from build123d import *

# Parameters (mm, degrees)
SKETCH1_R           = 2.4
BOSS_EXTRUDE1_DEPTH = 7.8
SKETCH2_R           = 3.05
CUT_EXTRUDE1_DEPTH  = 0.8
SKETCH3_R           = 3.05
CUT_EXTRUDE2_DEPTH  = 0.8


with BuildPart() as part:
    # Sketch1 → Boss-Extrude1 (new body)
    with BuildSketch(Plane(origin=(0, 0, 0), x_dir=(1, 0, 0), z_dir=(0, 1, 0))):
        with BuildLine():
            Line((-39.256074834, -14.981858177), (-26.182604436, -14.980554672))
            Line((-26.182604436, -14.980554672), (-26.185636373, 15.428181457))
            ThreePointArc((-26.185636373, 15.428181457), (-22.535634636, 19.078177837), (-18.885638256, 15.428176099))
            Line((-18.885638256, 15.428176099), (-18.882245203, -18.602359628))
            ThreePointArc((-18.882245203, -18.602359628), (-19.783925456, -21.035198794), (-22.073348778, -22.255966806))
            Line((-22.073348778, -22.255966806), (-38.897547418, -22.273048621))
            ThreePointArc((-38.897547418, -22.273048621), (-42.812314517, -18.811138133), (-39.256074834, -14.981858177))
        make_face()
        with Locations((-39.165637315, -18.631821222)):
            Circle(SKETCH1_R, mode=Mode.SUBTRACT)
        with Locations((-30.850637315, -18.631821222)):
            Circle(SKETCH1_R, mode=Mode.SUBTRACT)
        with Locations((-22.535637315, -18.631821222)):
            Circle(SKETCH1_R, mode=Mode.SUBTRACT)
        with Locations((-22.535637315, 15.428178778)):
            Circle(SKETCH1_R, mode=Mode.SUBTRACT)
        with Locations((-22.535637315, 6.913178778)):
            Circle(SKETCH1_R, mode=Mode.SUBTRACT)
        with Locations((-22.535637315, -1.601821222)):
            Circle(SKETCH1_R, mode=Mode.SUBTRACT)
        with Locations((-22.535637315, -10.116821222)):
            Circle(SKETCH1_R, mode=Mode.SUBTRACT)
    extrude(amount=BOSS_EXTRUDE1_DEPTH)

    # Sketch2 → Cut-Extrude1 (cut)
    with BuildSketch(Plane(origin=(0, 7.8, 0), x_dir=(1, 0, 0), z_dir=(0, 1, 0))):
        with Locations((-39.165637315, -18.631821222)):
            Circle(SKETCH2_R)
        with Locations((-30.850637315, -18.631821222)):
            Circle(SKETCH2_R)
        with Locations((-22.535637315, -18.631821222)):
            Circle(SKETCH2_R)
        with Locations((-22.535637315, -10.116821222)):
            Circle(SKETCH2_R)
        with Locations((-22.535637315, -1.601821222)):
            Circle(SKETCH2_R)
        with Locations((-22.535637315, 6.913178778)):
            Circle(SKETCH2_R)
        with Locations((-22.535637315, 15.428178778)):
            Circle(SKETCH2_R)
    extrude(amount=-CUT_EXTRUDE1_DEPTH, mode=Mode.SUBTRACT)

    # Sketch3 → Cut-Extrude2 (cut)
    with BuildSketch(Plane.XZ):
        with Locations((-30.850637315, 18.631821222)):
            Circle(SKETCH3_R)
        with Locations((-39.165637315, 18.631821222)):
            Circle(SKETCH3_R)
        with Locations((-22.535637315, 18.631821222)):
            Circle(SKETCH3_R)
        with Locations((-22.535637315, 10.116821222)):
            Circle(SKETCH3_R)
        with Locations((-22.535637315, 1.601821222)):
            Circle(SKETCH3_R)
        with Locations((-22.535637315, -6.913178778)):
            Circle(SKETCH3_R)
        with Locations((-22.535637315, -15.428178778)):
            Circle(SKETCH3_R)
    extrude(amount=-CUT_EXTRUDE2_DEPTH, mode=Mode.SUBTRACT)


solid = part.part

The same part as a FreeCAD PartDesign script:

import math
import FreeCAD as App
import Part
import Sketcher
Q = App.Units.Quantity

doc = App.newDocument("Part")
body = doc.addObject("PartDesign::Body", "Body")

sketch1 = body.newObject("Sketcher::SketchObject", "Sketch")
sketch1.AttachmentSupport = (doc.getObject("XZ_Plane"), [""])
sketch1.MapMode = "FlatFace"
sketch1.addGeometry([
    Part.LineSegment(App.Vector(-26.2, 15, 0), App.Vector(-39.3, 15, 0)),
    Part.ArcOfCircle(Part.Circle(App.Vector(-39.2, 18.6, 0), App.Vector(0, 0, 1), 3.7), math.radians(86), math.radians(269)),
    Part.LineSegment(App.Vector(-38.9, 22.3, 0), App.Vector(-22.1, 22.3, 0)),
    Part.ArcOfCircle(Part.Circle(App.Vector(-22.5, 18.6, 0), App.Vector(0, 0, 1), 3.7), math.radians(0), math.radians(83)),
    Part.LineSegment(App.Vector(-18.9, 18.6, 0), App.Vector(-18.9, -15.4, 0)),
    Part.ArcOfCircle(Part.Circle(App.Vector(-22.5, -15.4, 0), App.Vector(0, 0, 1), 3.6), math.radians(-180), math.radians(0)),
    Part.LineSegment(App.Vector(-26.2, -15.4, 0), App.Vector(-26.2, 15, 0)),
    Part.Circle(App.Vector(-22.5, 18.6, 0), App.Vector(0, 0, 1), 2.4),
    Part.Circle(App.Vector(-22.5, 10.1, 0), App.Vector(0, 0, 1), 2.4),
    Part.Circle(App.Vector(-30.9, 18.6, 0), App.Vector(0, 0, 1), 2.4),
    Part.Circle(App.Vector(-39.2, 18.6, 0), App.Vector(0, 0, 1), 2.4),
    Part.Circle(App.Vector(-22.5, 1.6, 0), App.Vector(0, 0, 1), 2.4),
    Part.Circle(App.Vector(-22.5, -6.9, 0), App.Vector(0, 0, 1), 2.4),
    Part.Circle(App.Vector(-22.5, -15.4, 0), App.Vector(0, 0, 1), 2.4),
], False)
sketch1.addConstraint([
    Sketcher.Constraint("Coincident", 0, 2, 1, 2),
    Sketcher.Constraint("Coincident", 1, 1, 2, 1),
    Sketcher.Constraint("Coincident", 2, 2, 3, 2),
    Sketcher.Constraint("Coincident", 3, 1, 4, 1),
    Sketcher.Constraint("Coincident", 4, 2, 5, 2),
    Sketcher.Constraint("Coincident", 5, 1, 6, 1),
    Sketcher.Constraint("Coincident", 6, 2, 0, 1),
    Sketcher.Constraint("Coincident", 7, 3, 3, 3),
    Sketcher.Constraint("Coincident", 10, 3, 1, 3),
    Sketcher.Constraint("Coincident", 13, 3, 5, 3),
    Sketcher.Constraint("Equal", 7, 8),
    Sketcher.Constraint("Equal", 8, 9),
    Sketcher.Constraint("Equal", 9, 10),
    Sketcher.Constraint("Equal", 10, 11),
    Sketcher.Constraint("Equal", 11, 12),
    Sketcher.Constraint("Equal", 12, 13),
    Sketcher.Constraint("Perpendicular", 0, 4),
    Sketcher.Constraint("Parallel", 4, 6),
    Sketcher.Constraint("Horizontal", 1, 3, 3, 3),
    Sketcher.Constraint("Horizontal", 7, 3, 9, 3),
    Sketcher.Constraint("Vertical", 3, 3, 5, 3),
    Sketcher.Constraint("Vertical", 7, 3, 8, 3),
    Sketcher.Constraint("Vertical", 8, 3, 11, 3),
    Sketcher.Constraint("Vertical", 11, 3, 12, 3),
    Sketcher.Constraint("Diameter", 7, Q("4.8 mm")),
    Sketcher.Constraint("Radius", 5, Q("3.649999 mm")),
    Sketcher.Constraint("Radius", 3, Q("3.653511 mm")),
    Sketcher.Constraint("DistanceX", 1, 3, 3, 3, Q("16.63 mm")),
    Sketcher.Constraint("DistanceY", 5, 3, 3, 3, Q("34.06 mm")),
    Sketcher.Constraint("DistanceY", 11, 3, 3, 3, Q("17.03 mm")),
    Sketcher.Constraint("DistanceY", 12, 3, 8, 3, Q("17.03 mm")),
    Sketcher.Constraint("Radius", 1, Q("3.651083 mm")),
    Sketcher.Constraint("DistanceY", 8, 3, 3, 3, Q("8.515 mm")),
    Sketcher.Constraint("DistanceX", 1, 3, 9, 3, Q("8.315 mm")),
    Sketcher.Constraint("DistanceX", 1, 1, 2, 2, Q("16.824199 mm")),
    Sketcher.Constraint("Distance", 0, Q("13.07347 mm")),
    Sketcher.Constraint("DistanceY", -1, 1, 1, 3, Q("18.631821 mm")),
    Sketcher.Constraint("DistanceY", -1, 1, 1, 1, Q("22.273049 mm")),
    Sketcher.Constraint("DistanceX", 2, 2, -1, 1, Q("22.073349 mm")),
    Sketcher.Constraint("DistanceY", -1, 1, 3, 1, Q("18.60236 mm")),
    Sketcher.Constraint("DistanceY", 5, 1, -1, 1, Q("15.428181 mm")),
    Sketcher.Constraint("Distance", 4, Q("34.030536 mm")),
])
pad1 = body.newObject("PartDesign::Pad", "Pad")
pad1.Profile = sketch1
pad1.Length = 7.8
pad1.Reversed = True

sketch2 = body.newObject("Sketcher::SketchObject", "Sketch001")
sketch2.AttachmentSupport = (doc.getObject("XZ_Plane"), [""])
sketch2.MapMode = "FlatFace"
sketch2.AttachmentOffset = App.Placement(App.Vector(0, 0, -7.8), App.Rotation())
sketch2.addGeometry([
    Part.Circle(App.Vector(-39.2, 18.6, 0), App.Vector(0, 0, 1), 3),
    Part.Circle(App.Vector(-30.9, 18.6, 0), App.Vector(0, 0, 1), 3),
    Part.Circle(App.Vector(-22.5, 18.6, 0), App.Vector(0, 0, 1), 3),
    Part.Circle(App.Vector(-22.5, 10.1, 0), App.Vector(0, 0, 1), 3),
    Part.Circle(App.Vector(-22.5, 1.6, 0), App.Vector(0, 0, 1), 3),
    Part.Circle(App.Vector(-22.5, -6.9, 0), App.Vector(0, 0, 1), 3),
    Part.Circle(App.Vector(-22.5, -15.4, 0), App.Vector(0, 0, 1), 3),
], False)
sketch2.addConstraint([
    Sketcher.Constraint("Equal", 0, 1),
    Sketcher.Constraint("Equal", 1, 2),
    Sketcher.Constraint("Equal", 2, 3),
    Sketcher.Constraint("Equal", 3, 4),
    Sketcher.Constraint("Equal", 4, 5),
    Sketcher.Constraint("Equal", 5, 6),
    Sketcher.Constraint("Horizontal", 0, 3, 1, 3),
    Sketcher.Constraint("Horizontal", 1, 3, 2, 3),
    Sketcher.Constraint("Vertical", 2, 3, 3, 3),
    Sketcher.Constraint("Vertical", 3, 3, 4, 3),
    Sketcher.Constraint("Vertical", 4, 3, 5, 3),
    Sketcher.Constraint("Vertical", 5, 3, 6, 3),
    Sketcher.Constraint("Diameter", 0, Q("6.1 mm")),
    Sketcher.Constraint("DistanceX", 0, 3, 2, 3, Q("16.63 mm")),
    Sketcher.Constraint("DistanceY", 4, 3, 2, 3, Q("17.03 mm")),
    Sketcher.Constraint("DistanceY", 5, 3, 3, 3, Q("17.03 mm")),
    Sketcher.Constraint("DistanceY", 6, 3, 4, 3, Q("17.03 mm")),
    Sketcher.Constraint("DistanceX", 0, 3, 1, 3, Q("8.315 mm")),
    Sketcher.Constraint("DistanceY", 3, 3, 2, 3, Q("8.515 mm")),
    Sketcher.Constraint("DistanceY", -1, 1, 0, 3, Q("18.631821 mm")),
    Sketcher.Constraint("DistanceX", 0, 3, -1, 1, Q("39.165637 mm")),
])
pocket1 = body.newObject("PartDesign::Pocket", "Pocket")
pocket1.Profile = sketch2
pocket1.Length = 0.8
pocket1.Reversed = True

sketch3 = body.newObject("Sketcher::SketchObject", "Sketch002")
sketch3.AttachmentSupport = (doc.getObject("XZ_Plane"), [""])
sketch3.MapMode = "FlatFace"
sketch3.addGeometry([
    Part.Circle(App.Vector(-30.9, 18.6, 0), App.Vector(0, 0, 1), 3),
    Part.Circle(App.Vector(-39.2, 18.6, 0), App.Vector(0, 0, 1), 3),
    Part.Circle(App.Vector(-22.5, 18.6, 0), App.Vector(0, 0, 1), 3),
    Part.Circle(App.Vector(-22.5, 10.1, 0), App.Vector(0, 0, 1), 3),
    Part.Circle(App.Vector(-22.5, 1.6, 0), App.Vector(0, 0, 1), 3),
    Part.Circle(App.Vector(-22.5, -6.9, 0), App.Vector(0, 0, 1), 3),
    Part.Circle(App.Vector(-22.5, -15.4, 0), App.Vector(0, 0, 1), 3),
], False)
sketch3.addConstraint([
    Sketcher.Constraint("Equal", 0, 1),
    Sketcher.Constraint("Equal", 1, 2),
    Sketcher.Constraint("Equal", 2, 3),
    Sketcher.Constraint("Equal", 3, 4),
    Sketcher.Constraint("Equal", 4, 5),
    Sketcher.Constraint("Equal", 5, 6),
    Sketcher.Constraint("Horizontal", 0, 3, 1, 3),
    Sketcher.Constraint("Horizontal", 1, 3, 2, 3),
    Sketcher.Constraint("Vertical", 2, 3, 3, 3),
    Sketcher.Constraint("Vertical", 3, 3, 4, 3),
    Sketcher.Constraint("Vertical", 4, 3, 5, 3),
    Sketcher.Constraint("Vertical", 5, 3, 6, 3),
    Sketcher.Constraint("Diameter", 0, Q("6.1 mm")),
    Sketcher.Constraint("DistanceX", 1, 3, 2, 3, Q("16.63 mm")),
    Sketcher.Constraint("DistanceY", 4, 3, 2, 3, Q("17.03 mm")),
    Sketcher.Constraint("DistanceY", 5, 3, 3, 3, Q("17.03 mm")),
    Sketcher.Constraint("DistanceY", 6, 3, 4, 3, Q("17.03 mm")),
    Sketcher.Constraint("DistanceX", 1, 3, 0, 3, Q("8.315 mm")),
    Sketcher.Constraint("DistanceY", 3, 3, 2, 3, Q("8.515 mm")),
    Sketcher.Constraint("DistanceY", -1, 1, 0, 3, Q("18.631821 mm")),
    Sketcher.Constraint("DistanceX", 0, 3, -1, 1, Q("30.850637 mm")),
])
pocket2 = body.newObject("PartDesign::Pocket", "Pocket001")
pocket2.Profile = sketch3
pocket2.Length = 0.8

doc.recompute()
